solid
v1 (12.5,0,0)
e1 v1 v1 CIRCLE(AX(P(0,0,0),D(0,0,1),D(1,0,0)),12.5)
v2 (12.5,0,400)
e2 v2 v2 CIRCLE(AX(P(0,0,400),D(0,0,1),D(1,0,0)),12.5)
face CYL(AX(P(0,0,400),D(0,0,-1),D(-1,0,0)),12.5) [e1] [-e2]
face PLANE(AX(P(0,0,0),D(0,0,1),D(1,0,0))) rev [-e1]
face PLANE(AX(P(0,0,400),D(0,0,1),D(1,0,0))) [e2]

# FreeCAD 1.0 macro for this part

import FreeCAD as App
import Part
import Sketcher
Q = App.Units.Quantity

doc = App.newDocument("Part")
params = doc.addObject("Spreadsheet::Sheet", "Params")
for row, (alias, value) in enumerate([
    ("sketch1_diameter", "25 mm"),
    ("pad1_length", "400 mm"),
], start=1):
    params.set(f"A{row}", alias)
    params.set(f"B{row}", "=" + value)
    params.setAlias(f"B{row}", alias)

body = doc.addObject("PartDesign::Body", "Body")

sketch1 = body.newObject("Sketcher::SketchObject", "Sketch")
sketch1.AttachmentSupport = (doc.getObject("XY_Plane"), [""])
sketch1.MapMode = "FlatFace"
sketch1.addGeometry(Part.Circle(App.Vector(0, 0, 0), App.Vector(0, 0, 1), 12), False)
sketch1.addConstraint(Sketcher.Constraint("Coincident", 0, 3, -1, 1))
sketch1.addConstraint(Sketcher.Constraint("Diameter", 0, Q("25 mm")))
sketch1.setExpression("Constraints[1]", "Params.sketch1_diameter")
pad1 = body.newObject("PartDesign::Pad", "Pad")
pad1.Profile = sketch1
pad1.setExpression("Length", "Params.pad1_length")

doc.recompute()
